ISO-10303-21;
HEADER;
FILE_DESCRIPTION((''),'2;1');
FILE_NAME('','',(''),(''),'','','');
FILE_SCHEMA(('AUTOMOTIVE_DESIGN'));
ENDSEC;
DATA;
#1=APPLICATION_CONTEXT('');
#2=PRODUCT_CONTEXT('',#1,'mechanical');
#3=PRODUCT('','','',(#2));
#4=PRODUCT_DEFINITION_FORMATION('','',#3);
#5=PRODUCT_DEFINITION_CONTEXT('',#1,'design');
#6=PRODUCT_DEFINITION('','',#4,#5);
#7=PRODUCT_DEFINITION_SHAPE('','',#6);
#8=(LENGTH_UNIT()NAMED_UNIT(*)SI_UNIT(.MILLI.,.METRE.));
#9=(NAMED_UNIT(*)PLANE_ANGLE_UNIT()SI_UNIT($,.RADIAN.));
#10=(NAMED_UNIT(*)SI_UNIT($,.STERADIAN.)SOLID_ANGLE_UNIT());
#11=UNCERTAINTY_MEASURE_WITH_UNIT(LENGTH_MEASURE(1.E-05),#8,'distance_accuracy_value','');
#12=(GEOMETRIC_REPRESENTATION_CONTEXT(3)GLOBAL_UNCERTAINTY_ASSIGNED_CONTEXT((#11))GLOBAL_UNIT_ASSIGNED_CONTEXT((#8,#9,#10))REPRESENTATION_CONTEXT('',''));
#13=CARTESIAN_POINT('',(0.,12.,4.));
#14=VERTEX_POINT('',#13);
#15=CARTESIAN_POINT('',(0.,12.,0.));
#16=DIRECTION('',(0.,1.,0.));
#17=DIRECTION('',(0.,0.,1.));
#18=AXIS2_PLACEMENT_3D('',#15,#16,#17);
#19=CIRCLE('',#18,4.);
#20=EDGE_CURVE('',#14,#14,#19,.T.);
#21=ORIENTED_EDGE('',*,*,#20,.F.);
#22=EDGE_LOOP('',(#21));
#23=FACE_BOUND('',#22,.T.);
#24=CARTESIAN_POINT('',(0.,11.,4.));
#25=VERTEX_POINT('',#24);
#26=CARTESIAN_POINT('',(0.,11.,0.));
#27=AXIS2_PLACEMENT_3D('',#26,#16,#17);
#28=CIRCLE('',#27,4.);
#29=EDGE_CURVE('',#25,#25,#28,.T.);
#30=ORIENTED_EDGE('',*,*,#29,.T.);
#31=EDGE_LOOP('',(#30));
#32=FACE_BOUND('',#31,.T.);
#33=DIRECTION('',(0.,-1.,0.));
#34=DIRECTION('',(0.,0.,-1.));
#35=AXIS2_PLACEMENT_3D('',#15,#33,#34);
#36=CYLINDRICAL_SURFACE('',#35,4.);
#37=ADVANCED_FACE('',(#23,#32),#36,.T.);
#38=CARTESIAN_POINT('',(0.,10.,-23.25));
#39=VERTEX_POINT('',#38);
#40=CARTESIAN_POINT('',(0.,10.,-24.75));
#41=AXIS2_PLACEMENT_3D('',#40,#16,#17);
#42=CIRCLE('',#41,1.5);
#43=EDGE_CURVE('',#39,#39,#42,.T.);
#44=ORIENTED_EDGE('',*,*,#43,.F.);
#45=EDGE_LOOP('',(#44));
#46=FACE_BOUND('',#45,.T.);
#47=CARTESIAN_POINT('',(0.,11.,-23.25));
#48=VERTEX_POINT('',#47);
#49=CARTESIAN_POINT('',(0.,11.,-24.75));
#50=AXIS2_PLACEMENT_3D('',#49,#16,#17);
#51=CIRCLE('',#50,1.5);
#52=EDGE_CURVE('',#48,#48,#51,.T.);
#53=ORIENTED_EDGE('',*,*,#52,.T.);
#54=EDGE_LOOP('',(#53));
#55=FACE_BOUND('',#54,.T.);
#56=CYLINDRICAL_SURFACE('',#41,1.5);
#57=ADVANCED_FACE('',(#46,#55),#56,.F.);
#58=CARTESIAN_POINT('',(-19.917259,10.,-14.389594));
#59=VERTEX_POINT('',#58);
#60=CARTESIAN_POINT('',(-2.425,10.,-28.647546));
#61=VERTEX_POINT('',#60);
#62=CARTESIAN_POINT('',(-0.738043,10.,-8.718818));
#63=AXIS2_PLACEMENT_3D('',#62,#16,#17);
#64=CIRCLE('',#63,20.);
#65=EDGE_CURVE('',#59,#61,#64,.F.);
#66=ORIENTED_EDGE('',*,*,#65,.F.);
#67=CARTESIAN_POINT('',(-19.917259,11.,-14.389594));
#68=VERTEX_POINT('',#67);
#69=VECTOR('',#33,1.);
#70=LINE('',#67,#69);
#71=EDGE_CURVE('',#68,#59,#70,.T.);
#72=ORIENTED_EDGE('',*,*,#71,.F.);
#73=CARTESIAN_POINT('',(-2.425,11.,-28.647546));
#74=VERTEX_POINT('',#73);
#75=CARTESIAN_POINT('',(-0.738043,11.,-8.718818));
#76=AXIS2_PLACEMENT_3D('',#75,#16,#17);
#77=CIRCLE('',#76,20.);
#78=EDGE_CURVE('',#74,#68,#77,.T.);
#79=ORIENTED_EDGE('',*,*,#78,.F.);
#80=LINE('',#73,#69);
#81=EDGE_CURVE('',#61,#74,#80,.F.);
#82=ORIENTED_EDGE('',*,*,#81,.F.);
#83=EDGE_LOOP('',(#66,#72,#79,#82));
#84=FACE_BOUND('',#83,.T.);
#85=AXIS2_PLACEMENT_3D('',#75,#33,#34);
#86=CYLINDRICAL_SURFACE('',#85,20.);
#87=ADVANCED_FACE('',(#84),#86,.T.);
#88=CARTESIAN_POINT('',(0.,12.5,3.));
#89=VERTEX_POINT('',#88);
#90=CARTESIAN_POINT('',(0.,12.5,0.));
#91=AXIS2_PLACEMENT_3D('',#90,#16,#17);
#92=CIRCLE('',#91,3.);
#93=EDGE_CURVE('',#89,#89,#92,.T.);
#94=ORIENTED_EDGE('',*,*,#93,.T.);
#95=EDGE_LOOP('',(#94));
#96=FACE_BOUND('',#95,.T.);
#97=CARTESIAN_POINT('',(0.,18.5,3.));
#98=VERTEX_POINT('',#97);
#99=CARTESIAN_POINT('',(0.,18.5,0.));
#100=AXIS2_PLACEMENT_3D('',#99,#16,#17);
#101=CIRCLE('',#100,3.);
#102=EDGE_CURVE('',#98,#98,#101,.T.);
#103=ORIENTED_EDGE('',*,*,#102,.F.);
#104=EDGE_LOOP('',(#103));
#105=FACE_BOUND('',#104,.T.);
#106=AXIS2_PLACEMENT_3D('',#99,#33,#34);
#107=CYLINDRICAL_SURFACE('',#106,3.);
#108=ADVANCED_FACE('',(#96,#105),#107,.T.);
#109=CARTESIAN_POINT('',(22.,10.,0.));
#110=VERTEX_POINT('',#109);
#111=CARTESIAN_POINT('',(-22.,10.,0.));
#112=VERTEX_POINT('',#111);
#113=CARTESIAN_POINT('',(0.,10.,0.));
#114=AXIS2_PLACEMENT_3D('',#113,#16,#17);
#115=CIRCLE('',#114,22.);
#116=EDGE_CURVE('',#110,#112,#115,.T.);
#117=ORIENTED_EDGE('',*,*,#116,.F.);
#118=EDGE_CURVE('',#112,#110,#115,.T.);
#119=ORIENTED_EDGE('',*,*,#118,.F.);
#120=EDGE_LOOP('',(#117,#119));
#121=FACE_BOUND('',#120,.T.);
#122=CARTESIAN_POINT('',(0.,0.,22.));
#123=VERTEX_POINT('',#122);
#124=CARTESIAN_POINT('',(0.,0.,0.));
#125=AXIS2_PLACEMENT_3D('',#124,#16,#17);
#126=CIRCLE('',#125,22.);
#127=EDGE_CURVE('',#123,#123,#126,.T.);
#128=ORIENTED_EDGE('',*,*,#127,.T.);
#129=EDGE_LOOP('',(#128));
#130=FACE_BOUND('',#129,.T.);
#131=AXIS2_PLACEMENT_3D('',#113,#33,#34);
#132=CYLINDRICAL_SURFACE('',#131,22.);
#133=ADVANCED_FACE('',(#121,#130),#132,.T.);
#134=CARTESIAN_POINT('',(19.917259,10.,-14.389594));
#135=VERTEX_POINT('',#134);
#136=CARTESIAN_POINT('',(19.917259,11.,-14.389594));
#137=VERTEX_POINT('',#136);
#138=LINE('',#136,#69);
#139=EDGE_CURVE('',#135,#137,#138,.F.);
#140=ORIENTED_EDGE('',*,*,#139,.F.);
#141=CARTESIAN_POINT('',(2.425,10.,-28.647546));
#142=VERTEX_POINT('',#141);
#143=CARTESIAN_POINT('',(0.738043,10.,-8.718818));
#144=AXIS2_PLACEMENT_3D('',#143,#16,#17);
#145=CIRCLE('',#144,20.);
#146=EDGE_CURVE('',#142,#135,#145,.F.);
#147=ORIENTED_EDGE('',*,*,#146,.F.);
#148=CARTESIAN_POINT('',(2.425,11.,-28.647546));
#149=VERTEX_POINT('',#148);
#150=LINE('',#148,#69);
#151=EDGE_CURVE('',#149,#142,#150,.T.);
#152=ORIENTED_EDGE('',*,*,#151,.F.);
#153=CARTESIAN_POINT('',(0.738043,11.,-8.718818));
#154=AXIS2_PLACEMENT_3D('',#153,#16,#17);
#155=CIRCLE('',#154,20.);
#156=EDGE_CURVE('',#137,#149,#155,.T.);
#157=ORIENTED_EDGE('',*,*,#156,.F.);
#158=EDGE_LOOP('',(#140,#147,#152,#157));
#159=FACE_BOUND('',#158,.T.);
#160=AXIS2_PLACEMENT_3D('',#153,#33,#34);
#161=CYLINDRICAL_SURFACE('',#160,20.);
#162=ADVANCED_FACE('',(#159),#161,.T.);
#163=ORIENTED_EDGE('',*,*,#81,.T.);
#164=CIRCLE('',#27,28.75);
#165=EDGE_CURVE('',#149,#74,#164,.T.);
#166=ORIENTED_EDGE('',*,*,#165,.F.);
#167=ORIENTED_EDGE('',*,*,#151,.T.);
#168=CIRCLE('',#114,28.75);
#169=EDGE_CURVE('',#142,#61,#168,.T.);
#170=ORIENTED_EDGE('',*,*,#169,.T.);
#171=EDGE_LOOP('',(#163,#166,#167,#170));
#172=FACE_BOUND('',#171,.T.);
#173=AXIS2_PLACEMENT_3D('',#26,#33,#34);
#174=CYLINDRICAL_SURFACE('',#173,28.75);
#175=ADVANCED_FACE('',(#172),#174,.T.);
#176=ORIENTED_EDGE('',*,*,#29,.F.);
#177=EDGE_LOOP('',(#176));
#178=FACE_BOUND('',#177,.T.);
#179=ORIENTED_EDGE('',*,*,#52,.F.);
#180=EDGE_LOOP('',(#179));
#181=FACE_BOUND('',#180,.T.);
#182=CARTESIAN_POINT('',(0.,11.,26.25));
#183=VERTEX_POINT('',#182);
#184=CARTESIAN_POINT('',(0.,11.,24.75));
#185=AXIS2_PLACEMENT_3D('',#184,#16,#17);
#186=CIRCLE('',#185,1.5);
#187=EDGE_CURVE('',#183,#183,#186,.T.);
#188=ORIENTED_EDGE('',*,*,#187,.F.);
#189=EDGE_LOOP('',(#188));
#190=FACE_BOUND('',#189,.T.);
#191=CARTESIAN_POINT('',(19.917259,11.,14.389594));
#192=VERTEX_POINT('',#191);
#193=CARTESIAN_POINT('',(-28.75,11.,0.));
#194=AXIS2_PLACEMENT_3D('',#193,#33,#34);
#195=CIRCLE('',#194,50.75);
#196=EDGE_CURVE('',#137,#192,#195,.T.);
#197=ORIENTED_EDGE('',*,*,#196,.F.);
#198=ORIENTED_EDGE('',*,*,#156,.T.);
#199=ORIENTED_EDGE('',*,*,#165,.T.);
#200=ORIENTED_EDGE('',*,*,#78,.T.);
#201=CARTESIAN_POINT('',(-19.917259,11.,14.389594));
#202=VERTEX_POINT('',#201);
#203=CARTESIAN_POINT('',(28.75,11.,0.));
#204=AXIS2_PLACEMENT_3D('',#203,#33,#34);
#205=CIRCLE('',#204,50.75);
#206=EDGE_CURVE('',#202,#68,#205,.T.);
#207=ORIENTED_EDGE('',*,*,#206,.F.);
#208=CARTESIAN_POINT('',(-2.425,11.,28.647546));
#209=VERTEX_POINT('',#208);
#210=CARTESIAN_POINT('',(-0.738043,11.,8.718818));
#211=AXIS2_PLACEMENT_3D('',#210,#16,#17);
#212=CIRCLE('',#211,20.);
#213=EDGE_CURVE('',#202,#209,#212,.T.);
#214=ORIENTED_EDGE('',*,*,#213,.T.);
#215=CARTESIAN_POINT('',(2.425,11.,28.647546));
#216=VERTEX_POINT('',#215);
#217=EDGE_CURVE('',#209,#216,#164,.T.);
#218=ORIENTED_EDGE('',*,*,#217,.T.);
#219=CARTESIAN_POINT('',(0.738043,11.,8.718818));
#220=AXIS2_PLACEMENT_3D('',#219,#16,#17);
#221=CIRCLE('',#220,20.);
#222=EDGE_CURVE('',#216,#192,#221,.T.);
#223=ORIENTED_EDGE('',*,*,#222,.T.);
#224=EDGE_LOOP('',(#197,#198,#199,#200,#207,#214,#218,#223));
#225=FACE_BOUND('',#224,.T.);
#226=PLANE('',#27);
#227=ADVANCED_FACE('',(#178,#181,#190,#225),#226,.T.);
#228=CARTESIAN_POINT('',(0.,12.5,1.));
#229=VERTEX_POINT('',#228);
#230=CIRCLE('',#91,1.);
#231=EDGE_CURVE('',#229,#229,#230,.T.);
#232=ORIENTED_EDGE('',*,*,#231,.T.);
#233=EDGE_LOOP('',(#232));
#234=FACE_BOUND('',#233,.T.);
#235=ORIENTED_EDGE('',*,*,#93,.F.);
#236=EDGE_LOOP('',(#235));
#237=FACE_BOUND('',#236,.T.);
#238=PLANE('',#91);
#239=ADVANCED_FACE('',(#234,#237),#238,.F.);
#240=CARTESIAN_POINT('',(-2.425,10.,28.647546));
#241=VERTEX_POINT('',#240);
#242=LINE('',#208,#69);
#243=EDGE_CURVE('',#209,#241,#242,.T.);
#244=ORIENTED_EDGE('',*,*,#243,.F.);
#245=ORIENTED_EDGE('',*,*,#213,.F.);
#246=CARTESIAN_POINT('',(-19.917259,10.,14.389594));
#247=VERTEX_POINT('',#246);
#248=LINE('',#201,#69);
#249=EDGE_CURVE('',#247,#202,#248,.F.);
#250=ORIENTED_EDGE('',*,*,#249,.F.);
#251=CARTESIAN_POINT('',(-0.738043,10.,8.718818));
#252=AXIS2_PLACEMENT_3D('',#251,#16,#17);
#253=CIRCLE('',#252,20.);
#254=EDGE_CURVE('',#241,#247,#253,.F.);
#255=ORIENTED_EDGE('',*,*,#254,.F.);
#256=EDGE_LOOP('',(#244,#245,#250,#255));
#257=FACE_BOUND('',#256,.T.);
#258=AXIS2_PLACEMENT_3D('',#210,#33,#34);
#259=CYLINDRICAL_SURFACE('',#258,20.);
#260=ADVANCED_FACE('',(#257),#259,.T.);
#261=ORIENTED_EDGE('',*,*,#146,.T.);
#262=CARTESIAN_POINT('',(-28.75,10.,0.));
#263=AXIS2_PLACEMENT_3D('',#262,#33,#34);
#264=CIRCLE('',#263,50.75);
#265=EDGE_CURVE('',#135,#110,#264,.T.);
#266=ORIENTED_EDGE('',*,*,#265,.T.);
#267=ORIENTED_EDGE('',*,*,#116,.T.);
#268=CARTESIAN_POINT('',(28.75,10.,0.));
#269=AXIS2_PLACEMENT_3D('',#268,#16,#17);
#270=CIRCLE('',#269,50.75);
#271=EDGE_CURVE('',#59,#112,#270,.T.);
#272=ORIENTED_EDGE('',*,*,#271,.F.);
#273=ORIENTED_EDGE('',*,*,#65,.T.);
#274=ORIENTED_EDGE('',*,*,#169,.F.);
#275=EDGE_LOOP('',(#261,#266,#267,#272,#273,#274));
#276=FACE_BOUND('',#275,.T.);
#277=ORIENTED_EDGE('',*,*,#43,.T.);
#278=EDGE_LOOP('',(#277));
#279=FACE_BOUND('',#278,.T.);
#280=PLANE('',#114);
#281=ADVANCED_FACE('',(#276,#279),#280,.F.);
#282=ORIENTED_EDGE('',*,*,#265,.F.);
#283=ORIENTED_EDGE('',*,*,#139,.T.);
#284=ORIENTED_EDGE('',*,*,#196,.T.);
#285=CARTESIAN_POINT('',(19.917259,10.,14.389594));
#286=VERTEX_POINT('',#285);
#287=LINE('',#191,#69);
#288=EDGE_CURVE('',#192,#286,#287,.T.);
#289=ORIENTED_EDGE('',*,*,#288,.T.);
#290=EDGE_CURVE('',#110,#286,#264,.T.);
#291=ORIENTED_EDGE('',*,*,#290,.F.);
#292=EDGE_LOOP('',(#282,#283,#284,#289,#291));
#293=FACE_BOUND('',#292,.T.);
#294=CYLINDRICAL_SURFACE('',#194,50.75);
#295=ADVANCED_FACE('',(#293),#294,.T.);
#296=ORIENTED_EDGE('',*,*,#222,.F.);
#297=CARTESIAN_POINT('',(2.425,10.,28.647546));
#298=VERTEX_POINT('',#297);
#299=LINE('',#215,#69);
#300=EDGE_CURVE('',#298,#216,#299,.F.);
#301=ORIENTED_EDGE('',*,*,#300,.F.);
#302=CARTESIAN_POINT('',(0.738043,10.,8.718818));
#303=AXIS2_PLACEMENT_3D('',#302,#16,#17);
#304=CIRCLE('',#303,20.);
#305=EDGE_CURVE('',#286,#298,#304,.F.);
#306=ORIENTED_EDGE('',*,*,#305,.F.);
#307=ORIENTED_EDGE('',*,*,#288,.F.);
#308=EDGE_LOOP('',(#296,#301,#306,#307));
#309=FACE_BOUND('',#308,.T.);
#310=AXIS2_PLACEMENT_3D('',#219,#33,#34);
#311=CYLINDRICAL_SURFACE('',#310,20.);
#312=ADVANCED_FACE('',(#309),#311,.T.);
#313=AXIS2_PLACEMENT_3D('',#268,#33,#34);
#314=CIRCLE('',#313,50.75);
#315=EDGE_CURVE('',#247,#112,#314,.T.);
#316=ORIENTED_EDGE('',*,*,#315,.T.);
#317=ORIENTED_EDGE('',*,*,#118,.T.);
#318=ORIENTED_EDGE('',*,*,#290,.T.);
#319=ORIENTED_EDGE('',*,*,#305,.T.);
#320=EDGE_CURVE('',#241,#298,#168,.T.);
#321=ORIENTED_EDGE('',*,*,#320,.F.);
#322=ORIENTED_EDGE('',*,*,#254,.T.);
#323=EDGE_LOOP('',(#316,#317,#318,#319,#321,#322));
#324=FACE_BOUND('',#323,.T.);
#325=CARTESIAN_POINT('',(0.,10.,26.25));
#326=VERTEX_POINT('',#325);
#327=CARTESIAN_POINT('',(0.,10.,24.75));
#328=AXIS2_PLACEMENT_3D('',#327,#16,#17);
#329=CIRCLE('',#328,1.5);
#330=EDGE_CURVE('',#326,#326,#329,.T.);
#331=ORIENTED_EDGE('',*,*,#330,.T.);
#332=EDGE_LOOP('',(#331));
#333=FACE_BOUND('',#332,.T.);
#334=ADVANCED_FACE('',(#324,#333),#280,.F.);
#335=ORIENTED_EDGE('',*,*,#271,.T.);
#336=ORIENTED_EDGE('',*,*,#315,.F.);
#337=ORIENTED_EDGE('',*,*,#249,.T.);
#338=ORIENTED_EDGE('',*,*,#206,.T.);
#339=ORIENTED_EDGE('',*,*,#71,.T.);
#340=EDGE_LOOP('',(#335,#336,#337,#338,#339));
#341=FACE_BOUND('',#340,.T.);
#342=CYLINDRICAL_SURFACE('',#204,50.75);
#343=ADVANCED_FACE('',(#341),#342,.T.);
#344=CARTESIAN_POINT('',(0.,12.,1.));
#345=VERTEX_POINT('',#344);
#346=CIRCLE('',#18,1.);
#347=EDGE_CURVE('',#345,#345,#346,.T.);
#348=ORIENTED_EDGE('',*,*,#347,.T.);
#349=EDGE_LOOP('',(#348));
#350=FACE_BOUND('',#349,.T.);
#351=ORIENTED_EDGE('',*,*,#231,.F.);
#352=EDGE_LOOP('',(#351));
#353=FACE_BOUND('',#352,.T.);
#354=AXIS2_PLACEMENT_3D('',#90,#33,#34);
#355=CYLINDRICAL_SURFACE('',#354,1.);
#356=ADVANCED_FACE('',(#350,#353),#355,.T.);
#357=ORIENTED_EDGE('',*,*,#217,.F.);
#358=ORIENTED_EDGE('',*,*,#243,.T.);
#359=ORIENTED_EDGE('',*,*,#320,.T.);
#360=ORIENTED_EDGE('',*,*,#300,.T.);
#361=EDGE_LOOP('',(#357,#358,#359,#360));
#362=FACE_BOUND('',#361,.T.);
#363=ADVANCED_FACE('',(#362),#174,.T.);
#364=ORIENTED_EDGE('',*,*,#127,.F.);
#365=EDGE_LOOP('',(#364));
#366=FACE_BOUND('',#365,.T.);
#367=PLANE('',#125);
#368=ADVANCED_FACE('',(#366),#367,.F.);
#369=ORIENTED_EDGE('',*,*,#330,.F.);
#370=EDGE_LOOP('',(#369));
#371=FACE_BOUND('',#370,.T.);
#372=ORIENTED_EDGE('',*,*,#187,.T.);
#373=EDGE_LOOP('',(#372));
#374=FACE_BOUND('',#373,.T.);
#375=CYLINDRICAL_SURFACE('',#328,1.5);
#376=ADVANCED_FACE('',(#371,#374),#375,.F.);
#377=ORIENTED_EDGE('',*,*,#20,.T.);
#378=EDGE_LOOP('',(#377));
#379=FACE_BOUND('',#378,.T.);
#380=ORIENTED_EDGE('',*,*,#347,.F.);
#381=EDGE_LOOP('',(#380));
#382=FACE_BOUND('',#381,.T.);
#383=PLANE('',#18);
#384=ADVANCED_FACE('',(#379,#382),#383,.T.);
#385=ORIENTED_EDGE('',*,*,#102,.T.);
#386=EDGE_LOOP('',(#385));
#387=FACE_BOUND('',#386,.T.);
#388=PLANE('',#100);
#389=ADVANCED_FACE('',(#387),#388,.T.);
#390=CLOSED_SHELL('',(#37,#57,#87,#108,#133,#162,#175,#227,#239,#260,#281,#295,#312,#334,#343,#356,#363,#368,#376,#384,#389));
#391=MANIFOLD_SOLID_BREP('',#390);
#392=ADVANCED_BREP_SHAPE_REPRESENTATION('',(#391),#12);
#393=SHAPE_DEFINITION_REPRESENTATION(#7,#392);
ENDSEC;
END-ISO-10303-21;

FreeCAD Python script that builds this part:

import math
import FreeCAD as App
import Part
import Sketcher
from FreeCAD import Vector


def edges_at(feature, points):
    """Names of the edges that pass closest to the given points."""
    edges = feature.Shape.Edges
    near = lambda p: min(range(len(edges)), key=lambda i: edges[i].distToShape(Part.Vertex(*p))[0])
    return sorted({f"Edge{near(p) + 1}" for p in points})

doc = App.newDocument("Part")
params = doc.addObject("Spreadsheet::Sheet", "Params")
for row, (alias, value) in enumerate([
    ("sketch1_diameter", "44 mm"),
    ("pad1_length", "10 mm"),
    ("sketch2_diameter", "57.5 mm"),
    ("pad2_length", "1 mm"),
    ("sketch3_diameter", "3 mm"),
    ("pocket1_length", "1 mm"),
    ("sketch4_radius", "50.75 mm"),
    ("sketch4_radius2", "28.75 mm"),
    ("pocket2_length", "1 mm"),
    ("fillet_radius", "20 mm"),
    ("sketch5_diameter", "8 mm"),
    ("pad3_length", "1 mm"),
    ("sketch6_diameter", "2 mm"),
    ("pad4_length", "0.5 mm"),
    ("sketch7_diameter", "6 mm"),
    ("pad5_length", "6 mm"),
], start=1):
    params.set(f"A{row}", alias)
    params.set(f"B{row}", "=" + value)
    params.setAlias(f"B{row}", alias)

body = doc.addObject("PartDesign::Body", "Body")

# Sketch on XZ plane
sketch1 = body.newObject("Sketcher::SketchObject", "Sketch")
sketch1.AttachmentSupport = (doc.getObject("XZ_Plane"), [""])
sketch1.MapMode = "FlatFace"
sketch1.addGeometry(Part.Circle(Vector(0, 0, 0), Vector(0, 0, 1), 22), False)
sketch1.addConstraint([
    Sketcher.Constraint("Coincident", 0, 3, -1, 1),
    Sketcher.Constraint("Diameter", 0, 44.0),
])
sketch1.setExpression("Constraints[1]", "Params.sketch1_diameter")
pad1 = body.newObject("PartDesign::Pad", "Pad")
pad1.Profile = sketch1
pad1.setExpression("Length", "Params.pad1_length")
pad1.Reversed = True

# Sketch on XZ plane
sketch2 = body.newObject("Sketcher::SketchObject", "Sketch001")
sketch2.AttachmentSupport = (doc.getObject("XZ_Plane"), [""])
sketch2.MapMode = "FlatFace"
sketch2.AttachmentOffset = App.Placement(Vector(0, 0, -10), App.Rotation())
sketch2.addGeometry(Part.Circle(Vector(0, 0, 0), Vector(0, 0, 1), 28.75), False)
sketch2.addConstraint([
    Sketcher.Constraint("Coincident", 0, 3, -1, 1),
    Sketcher.Constraint("Diameter", 0, 57.5),
])
sketch2.setExpression("Constraints[1]", "Params.sketch2_diameter")
pad2 = body.newObject("PartDesign::Pad", "Pad001")
pad2.Profile = sketch2
pad2.setExpression("Length", "Params.pad2_length")
pad2.Reversed = True

# Sketch on XZ plane
sketch3 = body.newObject("Sketcher::SketchObject", "Sketch002")
sketch3.AttachmentSupport = (doc.getObject("XZ_Plane"), [""])
sketch3.MapMode = "FlatFace"
sketch3.AttachmentOffset = App.Placement(Vector(0, 0, -11), App.Rotation())
sketch3.addGeometry([
    Part.Circle(Vector(0, 24.75, 0), Vector(0, 0, 1), 1.5),
    Part.Circle(Vector(0, -24.75, 0), Vector(0, 0, 1), 1.5),
], False)
sketch3.addConstraint([
    Sketcher.Constraint("Equal", 0, 1),
    Sketcher.Constraint("Symmetric", 0, 3, 1, 3, -1, 1),
    Sketcher.Constraint("PointOnObject", 0, 3, -2),
    Sketcher.Constraint("Diameter", 0, 3.0),
    Sketcher.Constraint("DistanceY", 1, 3, 0, 3, 49.5),
])
sketch3.setExpression("Constraints[3]", "Params.sketch3_diameter")
pocket1 = body.newObject("PartDesign::Pocket", "Pocket")
pocket1.Profile = sketch3
pocket1.setExpression("Length", "Params.pocket1_length")
pocket1.Reversed = True

# Sketch on XZ plane
sketch4 = body.newObject("Sketcher::SketchObject", "Sketch003")
sketch4.AttachmentSupport = (doc.getObject("XZ_Plane"), [""])
sketch4.MapMode = "FlatFace"
sketch4.AttachmentOffset = App.Placement(Vector(0, 0, -10), App.Rotation())
sketch4.addGeometry([
    Part.ArcOfCircle(Part.Circle(Vector(28.75, 0, 0), Vector(0, 0, 1), 50.75), math.radians(151.958668), math.radians(208.041332)),
    Part.ArcOfCircle(Part.Circle(Vector(0, 0, 0), Vector(0, 0, 1), 28.75), math.radians(123.917336), math.radians(236.082664)),
    Part.ArcOfCircle(Part.Circle(Vector(0, 0, 0), Vector(0, 0, 1), 28.75), math.radians(-56.082664), math.radians(56.082664)),
    Part.ArcOfCircle(Part.Circle(Vector(-28.75, 0, 0), Vector(0, 0, 1), 50.75), math.radians(-28.041332), math.radians(28.041332)),
], False)
sketch4.addConstraint([
    Sketcher.Constraint("Coincident", 0, 1, 1, 1),
    Sketcher.Constraint("Coincident", 1, 2, 0, 2),
    Sketcher.Constraint("Coincident", 2, 1, 3, 1),
    Sketcher.Constraint("Coincident", 3, 2, 2, 2),
    Sketcher.Constraint("Coincident", 1, 3, -1, 1),
    Sketcher.Constraint("Coincident", 2, 3, -1, 1),
    Sketcher.Constraint("Equal", 1, 2),
    Sketcher.Constraint("Equal", 0, 3),
    Sketcher.Constraint("Symmetric", 0, 3, 3, 3, -1, 1),
    Sketcher.Constraint("PointOnObject", 0, 3, -1),
    Sketcher.Constraint("Radius", 0, 50.75),
    Sketcher.Constraint("Radius", 1, 28.75),
    Sketcher.Constraint("DistanceX", 3, 3, 0, 3, 57.5),
])
sketch4.setExpression("Constraints[10]", "Params.sketch4_radius")
sketch4.setExpression("Constraints[11]", "Params.sketch4_radius2")
pocket2 = body.newObject("PartDesign::Pocket", "Pocket001")
pocket2.Profile = sketch4
pocket2.setExpression("Length", "Params.pocket2_length")
doc.recompute()

fillet = body.newObject("PartDesign::Fillet", "Fillet")
fillet.Base = (pocket2, edges_at(pocket2, [
    (-16.042, 10.5, 23.858),
    (-16.042, 10.5, -23.858),
    (16.042, 10.5, -23.858),
    (16.042, 10.5, 23.858),
]))
fillet.setExpression("Radius", "Params.fillet_radius")

# Sketch on XZ plane
sketch5 = body.newObject("Sketcher::SketchObject", "Sketch004")
sketch5.AttachmentSupport = (doc.getObject("XZ_Plane"), [""])
sketch5.MapMode = "FlatFace"
sketch5.AttachmentOffset = App.Placement(Vector(0, 0, -11), App.Rotation())
sketch5.addGeometry(Part.Circle(Vector(0, 0, 0), Vector(0, 0, 1), 4), False)
sketch5.addConstraint([
    Sketcher.Constraint("Coincident", 0, 3, -1, 1),
    Sketcher.Constraint("Diameter", 0, 8.0),
])
sketch5.setExpression("Constraints[1]", "Params.sketch5_diameter")
pad3 = body.newObject("PartDesign::Pad", "Pad002")
pad3.Profile = sketch5
pad3.setExpression("Length", "Params.pad3_length")
pad3.Reversed = True

# Sketch on XZ plane
sketch6 = body.newObject("Sketcher::SketchObject", "Sketch005")
sketch6.AttachmentSupport = (doc.getObject("XZ_Plane"), [""])
sketch6.MapMode = "FlatFace"
sketch6.AttachmentOffset = App.Placement(Vector(0, 0, -12), App.Rotation())
sketch6.addGeometry(Part.Circle(Vector(0, 0, 0), Vector(0, 0, 1), 1), False)
sketch6.addConstraint([
    Sketcher.Constraint("Coincident", 0, 3, -1, 1),
    Sketcher.Constraint("Diameter", 0, 2.0),
])
sketch6.setExpression("Constraints[1]", "Params.sketch6_diameter")
pad4 = body.newObject("PartDesign::Pad", "Pad003")
pad4.Profile = sketch6
pad4.setExpression("Length", "Params.pad4_length")
pad4.Reversed = True

# Sketch on XZ plane
sketch7 = body.newObject("Sketcher::SketchObject", "Sketch006")
sketch7.AttachmentSupport = (doc.getObject("XZ_Plane"), [""])
sketch7.MapMode = "FlatFace"
sketch7.AttachmentOffset = App.Placement(Vector(0, 0, -12.5), App.Rotation())
sketch7.addGeometry(Part.Circle(Vector(0, 0, 0), Vector(0, 0, 1), 3), False)
sketch7.addConstraint([
    Sketcher.Constraint("Coincident", 0, 3, -1, 1),
    Sketcher.Constraint("Diameter", 0, 6.0),
])
sketch7.setExpression("Constraints[1]", "Params.sketch7_diameter")
pad5 = body.newObject("PartDesign::Pad", "Pad004")
pad5.Profile = sketch7
pad5.setExpression("Length", "Params.pad5_length")
pad5.Reversed = True

doc.recompute()
